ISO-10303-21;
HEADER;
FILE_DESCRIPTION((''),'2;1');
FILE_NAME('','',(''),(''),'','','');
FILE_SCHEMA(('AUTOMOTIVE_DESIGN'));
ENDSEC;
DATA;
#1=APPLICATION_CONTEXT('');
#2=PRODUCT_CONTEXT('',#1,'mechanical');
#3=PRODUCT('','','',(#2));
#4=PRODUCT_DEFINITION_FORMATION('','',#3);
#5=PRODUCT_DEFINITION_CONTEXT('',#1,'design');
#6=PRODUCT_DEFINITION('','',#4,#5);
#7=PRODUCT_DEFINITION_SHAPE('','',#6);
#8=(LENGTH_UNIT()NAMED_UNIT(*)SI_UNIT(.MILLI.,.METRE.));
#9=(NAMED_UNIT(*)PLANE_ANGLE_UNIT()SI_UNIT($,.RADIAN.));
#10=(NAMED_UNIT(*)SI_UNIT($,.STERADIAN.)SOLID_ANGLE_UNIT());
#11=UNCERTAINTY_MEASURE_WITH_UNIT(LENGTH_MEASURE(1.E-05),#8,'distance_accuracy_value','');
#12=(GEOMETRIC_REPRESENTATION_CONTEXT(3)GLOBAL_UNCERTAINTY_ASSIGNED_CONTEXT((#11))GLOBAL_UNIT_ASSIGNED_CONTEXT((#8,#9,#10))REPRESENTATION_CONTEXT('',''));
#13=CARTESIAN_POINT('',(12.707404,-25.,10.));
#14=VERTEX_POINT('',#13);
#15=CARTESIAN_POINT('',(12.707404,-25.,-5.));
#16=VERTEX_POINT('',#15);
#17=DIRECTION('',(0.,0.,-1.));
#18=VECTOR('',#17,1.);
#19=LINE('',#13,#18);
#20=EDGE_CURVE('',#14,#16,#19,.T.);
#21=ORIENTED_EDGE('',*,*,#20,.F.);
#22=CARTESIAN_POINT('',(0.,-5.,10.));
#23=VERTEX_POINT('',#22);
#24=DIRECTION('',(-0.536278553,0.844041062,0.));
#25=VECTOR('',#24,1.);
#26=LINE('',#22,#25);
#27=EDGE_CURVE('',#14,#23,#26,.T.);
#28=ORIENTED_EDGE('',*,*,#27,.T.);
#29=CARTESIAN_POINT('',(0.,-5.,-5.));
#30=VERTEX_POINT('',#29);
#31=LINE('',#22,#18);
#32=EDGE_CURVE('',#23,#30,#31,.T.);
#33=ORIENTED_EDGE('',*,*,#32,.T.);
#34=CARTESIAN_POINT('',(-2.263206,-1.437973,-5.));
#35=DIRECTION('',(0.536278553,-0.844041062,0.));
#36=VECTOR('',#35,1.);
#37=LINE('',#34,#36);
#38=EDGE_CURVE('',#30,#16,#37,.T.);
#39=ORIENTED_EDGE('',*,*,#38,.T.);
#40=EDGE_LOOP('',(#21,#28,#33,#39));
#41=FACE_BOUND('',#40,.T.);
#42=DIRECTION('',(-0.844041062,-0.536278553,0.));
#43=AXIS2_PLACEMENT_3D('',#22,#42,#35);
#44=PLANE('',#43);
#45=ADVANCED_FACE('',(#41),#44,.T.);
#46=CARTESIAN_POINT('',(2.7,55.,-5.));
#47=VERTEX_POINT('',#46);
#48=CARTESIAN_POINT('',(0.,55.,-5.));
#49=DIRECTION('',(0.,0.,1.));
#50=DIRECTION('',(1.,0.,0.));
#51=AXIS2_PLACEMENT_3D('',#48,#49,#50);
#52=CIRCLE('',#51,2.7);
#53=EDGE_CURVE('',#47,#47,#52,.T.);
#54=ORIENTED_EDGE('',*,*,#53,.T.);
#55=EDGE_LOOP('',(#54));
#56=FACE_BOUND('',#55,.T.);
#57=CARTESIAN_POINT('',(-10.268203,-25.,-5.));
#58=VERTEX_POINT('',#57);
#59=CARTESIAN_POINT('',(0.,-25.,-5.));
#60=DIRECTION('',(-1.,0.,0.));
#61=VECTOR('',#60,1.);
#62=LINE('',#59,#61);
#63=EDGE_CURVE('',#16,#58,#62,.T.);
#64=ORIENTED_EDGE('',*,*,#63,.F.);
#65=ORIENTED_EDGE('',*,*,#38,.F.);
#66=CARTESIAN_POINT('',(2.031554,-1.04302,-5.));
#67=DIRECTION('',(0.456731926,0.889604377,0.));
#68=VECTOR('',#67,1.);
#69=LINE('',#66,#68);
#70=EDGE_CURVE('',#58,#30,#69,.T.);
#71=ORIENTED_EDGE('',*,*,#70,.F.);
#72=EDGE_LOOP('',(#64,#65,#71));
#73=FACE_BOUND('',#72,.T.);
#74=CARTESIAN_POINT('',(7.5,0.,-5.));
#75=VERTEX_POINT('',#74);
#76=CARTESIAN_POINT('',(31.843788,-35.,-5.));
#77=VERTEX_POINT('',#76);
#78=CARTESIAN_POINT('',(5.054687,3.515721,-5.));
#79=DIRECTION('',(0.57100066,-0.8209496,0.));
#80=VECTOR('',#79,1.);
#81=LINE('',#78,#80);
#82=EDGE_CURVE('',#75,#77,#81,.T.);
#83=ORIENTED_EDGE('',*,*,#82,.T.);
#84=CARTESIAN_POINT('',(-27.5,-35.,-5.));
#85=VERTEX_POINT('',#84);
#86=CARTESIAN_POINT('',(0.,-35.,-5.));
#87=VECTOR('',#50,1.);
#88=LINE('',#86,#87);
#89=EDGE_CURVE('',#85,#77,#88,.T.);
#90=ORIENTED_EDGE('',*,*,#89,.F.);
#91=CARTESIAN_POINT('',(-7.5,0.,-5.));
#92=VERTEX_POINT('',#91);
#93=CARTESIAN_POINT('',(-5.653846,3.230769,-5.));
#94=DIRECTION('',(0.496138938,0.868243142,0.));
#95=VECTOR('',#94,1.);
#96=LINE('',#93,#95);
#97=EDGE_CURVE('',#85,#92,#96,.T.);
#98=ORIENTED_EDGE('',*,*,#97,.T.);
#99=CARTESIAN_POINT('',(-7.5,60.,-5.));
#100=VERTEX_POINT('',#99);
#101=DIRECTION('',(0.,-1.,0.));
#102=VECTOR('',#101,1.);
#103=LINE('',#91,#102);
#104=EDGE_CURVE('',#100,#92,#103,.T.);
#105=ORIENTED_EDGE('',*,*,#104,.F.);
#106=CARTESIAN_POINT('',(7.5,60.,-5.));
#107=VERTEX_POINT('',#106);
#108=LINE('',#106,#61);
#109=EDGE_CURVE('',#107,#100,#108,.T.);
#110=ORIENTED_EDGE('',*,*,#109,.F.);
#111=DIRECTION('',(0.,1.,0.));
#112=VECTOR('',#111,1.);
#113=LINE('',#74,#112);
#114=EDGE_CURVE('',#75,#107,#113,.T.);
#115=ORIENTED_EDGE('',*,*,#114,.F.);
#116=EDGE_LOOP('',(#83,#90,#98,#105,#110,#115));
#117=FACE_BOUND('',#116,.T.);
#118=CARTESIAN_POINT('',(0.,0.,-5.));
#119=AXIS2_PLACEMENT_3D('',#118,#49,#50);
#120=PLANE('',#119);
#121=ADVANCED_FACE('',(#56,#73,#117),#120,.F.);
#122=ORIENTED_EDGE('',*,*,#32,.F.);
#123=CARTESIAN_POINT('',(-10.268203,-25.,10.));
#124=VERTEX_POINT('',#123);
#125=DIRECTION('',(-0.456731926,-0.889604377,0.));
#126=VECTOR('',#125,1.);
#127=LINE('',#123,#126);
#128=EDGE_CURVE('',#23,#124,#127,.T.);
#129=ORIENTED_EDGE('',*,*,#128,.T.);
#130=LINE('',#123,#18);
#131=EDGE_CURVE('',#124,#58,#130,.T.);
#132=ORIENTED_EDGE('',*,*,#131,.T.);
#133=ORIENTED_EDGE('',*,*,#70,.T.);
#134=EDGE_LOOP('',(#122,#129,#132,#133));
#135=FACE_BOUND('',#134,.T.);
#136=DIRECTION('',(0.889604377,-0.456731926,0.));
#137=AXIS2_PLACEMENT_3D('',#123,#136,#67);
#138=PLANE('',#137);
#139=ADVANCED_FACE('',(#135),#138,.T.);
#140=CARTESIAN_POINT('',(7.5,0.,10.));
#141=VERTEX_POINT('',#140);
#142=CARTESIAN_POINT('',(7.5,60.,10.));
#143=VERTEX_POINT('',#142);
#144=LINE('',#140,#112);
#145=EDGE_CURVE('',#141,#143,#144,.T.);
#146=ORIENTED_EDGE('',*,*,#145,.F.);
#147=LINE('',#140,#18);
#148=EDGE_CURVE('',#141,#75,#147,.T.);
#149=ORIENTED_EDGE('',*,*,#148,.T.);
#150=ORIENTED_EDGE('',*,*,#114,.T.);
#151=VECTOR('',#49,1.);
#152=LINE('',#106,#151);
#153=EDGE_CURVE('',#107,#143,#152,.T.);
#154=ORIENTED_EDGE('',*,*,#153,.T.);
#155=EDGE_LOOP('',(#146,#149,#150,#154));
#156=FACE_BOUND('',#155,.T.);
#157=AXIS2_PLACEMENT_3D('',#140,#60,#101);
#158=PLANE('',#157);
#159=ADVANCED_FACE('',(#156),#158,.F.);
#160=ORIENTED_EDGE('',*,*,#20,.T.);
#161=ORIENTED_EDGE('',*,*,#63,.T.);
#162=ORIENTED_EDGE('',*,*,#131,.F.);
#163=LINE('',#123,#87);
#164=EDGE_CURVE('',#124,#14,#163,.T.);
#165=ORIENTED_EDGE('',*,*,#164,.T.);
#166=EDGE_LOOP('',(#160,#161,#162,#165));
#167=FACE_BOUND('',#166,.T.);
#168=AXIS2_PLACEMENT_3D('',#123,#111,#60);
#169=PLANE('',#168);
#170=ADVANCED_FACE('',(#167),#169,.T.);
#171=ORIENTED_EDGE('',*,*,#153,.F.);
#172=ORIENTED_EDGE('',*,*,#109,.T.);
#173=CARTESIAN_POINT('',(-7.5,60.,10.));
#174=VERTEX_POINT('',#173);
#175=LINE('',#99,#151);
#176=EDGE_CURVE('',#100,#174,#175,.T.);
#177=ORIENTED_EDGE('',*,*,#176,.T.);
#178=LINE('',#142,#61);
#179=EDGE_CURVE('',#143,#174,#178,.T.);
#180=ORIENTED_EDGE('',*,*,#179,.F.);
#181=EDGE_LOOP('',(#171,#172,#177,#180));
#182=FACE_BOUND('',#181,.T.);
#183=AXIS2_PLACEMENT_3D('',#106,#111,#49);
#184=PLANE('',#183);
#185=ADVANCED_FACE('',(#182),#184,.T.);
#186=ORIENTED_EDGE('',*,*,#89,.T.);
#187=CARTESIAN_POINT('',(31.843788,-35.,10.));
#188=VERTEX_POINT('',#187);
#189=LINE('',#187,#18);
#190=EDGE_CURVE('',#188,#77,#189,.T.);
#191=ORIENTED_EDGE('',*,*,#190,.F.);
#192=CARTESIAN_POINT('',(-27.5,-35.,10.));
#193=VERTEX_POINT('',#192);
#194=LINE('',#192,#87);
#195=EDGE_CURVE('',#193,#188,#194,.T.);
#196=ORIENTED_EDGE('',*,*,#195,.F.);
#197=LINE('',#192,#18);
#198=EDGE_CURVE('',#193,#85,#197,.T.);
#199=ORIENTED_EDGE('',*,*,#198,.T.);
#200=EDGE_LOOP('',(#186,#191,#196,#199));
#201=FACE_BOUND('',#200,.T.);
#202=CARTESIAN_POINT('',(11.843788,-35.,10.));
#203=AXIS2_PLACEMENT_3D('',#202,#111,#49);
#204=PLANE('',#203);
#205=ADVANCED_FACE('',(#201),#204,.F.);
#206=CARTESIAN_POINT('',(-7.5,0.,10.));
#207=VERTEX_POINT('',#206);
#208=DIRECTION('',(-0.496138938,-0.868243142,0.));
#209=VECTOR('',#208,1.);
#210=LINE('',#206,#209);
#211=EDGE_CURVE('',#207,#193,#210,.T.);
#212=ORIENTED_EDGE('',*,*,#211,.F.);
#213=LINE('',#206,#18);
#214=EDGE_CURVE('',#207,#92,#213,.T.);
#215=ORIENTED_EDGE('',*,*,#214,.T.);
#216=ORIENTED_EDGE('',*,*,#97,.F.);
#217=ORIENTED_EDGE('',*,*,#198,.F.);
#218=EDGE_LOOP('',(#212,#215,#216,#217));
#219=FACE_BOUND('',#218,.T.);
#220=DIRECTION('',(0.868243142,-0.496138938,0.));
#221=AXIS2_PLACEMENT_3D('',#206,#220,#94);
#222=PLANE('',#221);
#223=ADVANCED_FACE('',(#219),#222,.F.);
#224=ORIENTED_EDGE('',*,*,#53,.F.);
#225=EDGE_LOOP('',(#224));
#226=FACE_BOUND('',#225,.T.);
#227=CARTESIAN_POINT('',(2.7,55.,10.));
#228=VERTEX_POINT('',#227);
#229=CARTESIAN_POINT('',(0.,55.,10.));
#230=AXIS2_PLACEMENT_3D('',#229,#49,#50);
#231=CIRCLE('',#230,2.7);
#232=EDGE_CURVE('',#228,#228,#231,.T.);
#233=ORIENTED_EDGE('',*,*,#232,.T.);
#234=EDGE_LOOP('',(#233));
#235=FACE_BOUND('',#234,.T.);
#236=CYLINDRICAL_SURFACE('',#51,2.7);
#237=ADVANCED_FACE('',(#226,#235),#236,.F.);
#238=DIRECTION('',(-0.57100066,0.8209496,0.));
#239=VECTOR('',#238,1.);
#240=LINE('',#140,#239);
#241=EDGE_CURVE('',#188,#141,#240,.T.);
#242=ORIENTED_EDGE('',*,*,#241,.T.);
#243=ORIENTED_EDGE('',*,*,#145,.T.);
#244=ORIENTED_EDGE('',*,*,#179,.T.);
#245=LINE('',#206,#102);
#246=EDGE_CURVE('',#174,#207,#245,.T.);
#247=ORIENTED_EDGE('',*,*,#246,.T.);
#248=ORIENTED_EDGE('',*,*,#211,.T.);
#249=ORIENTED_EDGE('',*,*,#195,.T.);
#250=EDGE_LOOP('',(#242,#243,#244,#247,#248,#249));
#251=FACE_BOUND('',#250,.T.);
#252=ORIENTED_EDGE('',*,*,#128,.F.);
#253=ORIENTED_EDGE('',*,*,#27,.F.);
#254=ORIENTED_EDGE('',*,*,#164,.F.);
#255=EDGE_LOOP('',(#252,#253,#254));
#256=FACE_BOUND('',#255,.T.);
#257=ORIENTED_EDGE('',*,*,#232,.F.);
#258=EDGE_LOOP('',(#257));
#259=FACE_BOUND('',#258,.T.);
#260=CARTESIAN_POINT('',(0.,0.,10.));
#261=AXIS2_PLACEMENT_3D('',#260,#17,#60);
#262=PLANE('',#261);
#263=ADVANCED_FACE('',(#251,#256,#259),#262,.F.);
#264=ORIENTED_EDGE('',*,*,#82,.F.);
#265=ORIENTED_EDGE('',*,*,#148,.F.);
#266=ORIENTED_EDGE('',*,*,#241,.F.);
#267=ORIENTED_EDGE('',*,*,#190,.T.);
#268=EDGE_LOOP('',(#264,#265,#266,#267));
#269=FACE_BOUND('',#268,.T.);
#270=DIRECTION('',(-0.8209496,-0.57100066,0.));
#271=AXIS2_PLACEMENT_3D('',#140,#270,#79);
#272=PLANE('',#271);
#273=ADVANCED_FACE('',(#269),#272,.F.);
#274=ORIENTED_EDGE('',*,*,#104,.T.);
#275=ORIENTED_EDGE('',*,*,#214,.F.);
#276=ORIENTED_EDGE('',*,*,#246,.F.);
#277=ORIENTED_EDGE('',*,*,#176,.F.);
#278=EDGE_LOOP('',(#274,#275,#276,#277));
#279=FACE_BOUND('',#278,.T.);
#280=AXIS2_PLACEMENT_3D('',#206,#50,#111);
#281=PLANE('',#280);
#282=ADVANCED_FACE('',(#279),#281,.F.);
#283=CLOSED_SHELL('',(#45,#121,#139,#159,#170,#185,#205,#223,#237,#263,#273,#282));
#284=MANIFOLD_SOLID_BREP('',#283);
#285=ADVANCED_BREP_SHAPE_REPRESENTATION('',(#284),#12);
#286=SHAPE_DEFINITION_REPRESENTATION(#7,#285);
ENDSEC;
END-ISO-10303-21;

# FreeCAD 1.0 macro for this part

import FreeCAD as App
import Part
import Sketcher


def add_polygon(sketch, points):
    """Adds a closed chain of lines whose ends are joined by coincident constraints."""
    first, n = sketch.GeometryCount, len(points)
    for a, b in zip(points, points[1:] + points[:1]):
        sketch.addGeometry(Part.LineSegment(App.Vector(*a, 0), App.Vector(*b, 0)), False)
    for i in range(n):
        sketch.addConstraint(Sketcher.Constraint("Coincident", first + i, 2, first + (i + 1) % n, 1))

doc = App.newDocument("Part")
body = doc.addObject("PartDesign::Body", "Body")

# Sketch on XY plane
sketch1 = doc.addObject("Sketcher::SketchObject", "Sketch")
body.addObject(sketch1)
sketch1.AttachmentSupport = (doc.XY_Plane, [""])
sketch1.MapMode = "FlatFace"
add_polygon(sketch1, [(-8, 0), (-28, -35), (32, -35), (8, 0), (8, 35), (-8, 35)])  # lines 0-5
add_polygon(sketch1, [(13, -25), (-10, -25), (0, -5)])  # lines 6-8
sketch1.addConstraint(Sketcher.Constraint("Horizontal", 1))
sketch1.addConstraint(Sketcher.Constraint("Vertical", 3))
sketch1.addConstraint(Sketcher.Constraint("Horizontal", 4))
sketch1.addConstraint(Sketcher.Constraint("Vertical", 5))
sketch1.addConstraint(Sketcher.Constraint("Horizontal", 6))
sketch1.addConstraint(Sketcher.Constraint("Symmetric", 2, 2, 5, 2, -1, 1))
sketch1.addConstraint(Sketcher.Constraint("PointOnObject", 2, 2, -1))
sketch1.addConstraint(Sketcher.Constraint("PointOnObject", 7, 2, -2))
sketch1.addConstraint(Sketcher.Constraint("DistanceX", 4, 2, 4, 1, 15.0))
sketch1.addConstraint(Sketcher.Constraint("DistanceY", 0, 2, -1, 1, 35.0))
sketch1.addConstraint(Sketcher.Constraint("DistanceY", 6, 2, -1, 1, 25.0))
sketch1.addConstraint(Sketcher.Constraint("DistanceY", 7, 2, -1, 1, 5.0))
sketch1.addConstraint(Sketcher.Constraint("DistanceX", 0, 2, 2, 2, 35.0))
sketch1.addConstraint(Sketcher.Constraint("DistanceX", 1, 1, 1, 2, 59.343788))
sketch1.addConstraint(Sketcher.Constraint("Distance", 8, 23.69553))
sketch1.addConstraint(Sketcher.Constraint("DistanceX", 6, 2, 6, 1, 22.975608))
sketch1.addConstraint(Sketcher.Constraint("DistanceY", 3, 1, 3, 2, 34.865095))
pad1 = doc.addObject("PartDesign::Pad", "Pad")
body.addObject(pad1)
pad1.Profile = sketch1
pad1.Length = 10

# Sketch on XY plane
sketch2 = doc.addObject("Sketcher::SketchObject", "Sketch001")
body.addObject(sketch2)
sketch2.AttachmentSupport = (doc.XY_Plane, [""])
sketch2.MapMode = "FlatFace"
sketch2.AttachmentOffset = App.Placement(App.Vector(0, 0, 10), App.Rotation())
sketch2.addGeometry(Part.Circle(App.Vector(0, 28.9, 0), App.Vector(0, 0, 1), 2.5), False)
sketch2.addConstraint(Sketcher.Constraint("PointOnObject", 0, 3, -2))
sketch2.addConstraint(Sketcher.Constraint("Diameter", 0, 5.0))
sketch2.addConstraint(Sketcher.Constraint("DistanceY", -1, 1, 0, 3, 28.865095))
pocket1 = doc.addObject("PartDesign::Pocket", "Pocket")
body.addObject(pocket1)
pocket1.Profile = sketch2
pocket1.Length = 10

# Sketch on XY plane
sketch3 = doc.addObject("Sketcher::SketchObject", "Sketch002")
body.addObject(sketch3)
sketch3.AttachmentSupport = (doc.XY_Plane, [""])
sketch3.MapMode = "FlatFace"
sketch3.AttachmentOffset = App.Placement(App.Vector(0, 0, 10), App.Rotation())
add_polygon(sketch3, [(-8, 60), (-8, 0), (8, 0), (8, 60)])  # lines 0-3
sketch3.addConstraint(Sketcher.Constraint("Vertical", 0))
sketch3.addConstraint(Sketcher.Constraint("Horizontal", 1))
sketch3.addConstraint(Sketcher.Constraint("Vertical", 2))
sketch3.addConstraint(Sketcher.Constraint("Horizontal", 3))
sketch3.addConstraint(Sketcher.Constraint("Symmetric", 0, 2, 1, 2, -1, 1))
sketch3.addConstraint(Sketcher.Constraint("DistanceX", 1, 1, 1, 2, 15.0))
sketch3.addConstraint(Sketcher.Constraint("DistanceY", 0, 2, 0, 1, 60.0))
pad2 = doc.addObject("PartDesign::Pad", "Pad001")
body.addObject(pad2)
pad2.Profile = sketch3
pad2.Length = 15
pad2.Reversed = True

# Sketch on XY plane
sketch4 = doc.addObject("Sketcher::SketchObject", "Sketch003")
body.addObject(sketch4)
sketch4.AttachmentSupport = (doc.XY_Plane, [""])
sketch4.MapMode = "FlatFace"
sketch4.AttachmentOffset = App.Placement(App.Vector(0, 0, 10), App.Rotation())
add_polygon(sketch4, [(-8, 0), (-28, -35), (32, -35), (8, 0), (-1, 12)])  # lines 0-4
add_polygon(sketch4, [(0, -5), (13, -25), (-10, -25)])  # lines 5-7
sketch4.addConstraint(Sketcher.Constraint("Horizontal", 1))
sketch4.addConstraint(Sketcher.Constraint("Horizontal", 6))
sketch4.addConstraint(Sketcher.Constraint("Symmetric", 2, 2, 4, 2, -1, 1))
sketch4.addConstraint(Sketcher.Constraint("PointOnObject", 2, 2, -1))
sketch4.addConstraint(Sketcher.Constraint("PointOnObject", 7, 2, -2))
sketch4.addConstraint(Sketcher.Constraint("Parallel", 2, 3))
sketch4.addConstraint(Sketcher.Constraint("Parallel", 0, 4))
sketch4.addConstraint(Sketcher.Constraint("DistanceY", 0, 2, -1, 1, 35.0))
sketch4.addConstraint(Sketcher.Constraint("DistanceY", 5, 2, -1, 1, 25.0))
sketch4.addConstraint(Sketcher.Constraint("DistanceY", 7, 2, -1, 1, 5.0))
sketch4.addConstraint(Sketcher.Constraint("DistanceX", 0, 2, 2, 2, 35.0))
sketch4.addConstraint(Sketcher.Constraint("DistanceX", 4, 2, 2, 2, 15.0))
sketch4.addConstraint(Sketcher.Constraint("DistanceX", 1, 1, 1, 2, 59.343788))
sketch4.addConstraint(Sketcher.Constraint("Distance", 5, 23.69553))
sketch4.addConstraint(Sketcher.Constraint("DistanceX", 6, 2, 6, 1, 22.975608))
pad3 = doc.addObject("PartDesign::Pad", "Pad002")
body.addObject(pad3)
pad3.Profile = sketch4
pad3.Length = 15
pad3.Reversed = True

# Sketch on XY plane
sketch5 = doc.addObject("Sketcher::SketchObject", "Sketch004")
body.addObject(sketch5)
sketch5.AttachmentSupport = (doc.XY_Plane, [""])
sketch5.MapMode = "FlatFace"
sketch5.AttachmentOffset = App.Placement(App.Vector(0, 0, 10), App.Rotation())
sketch5.addGeometry(Part.Circle(App.Vector(0, 55, 0), App.Vector(0, 0, 1), 2.7), False)
sketch5.addConstraint(Sketcher.Constraint("PointOnObject", 0, 3, -2))
sketch5.addConstraint(Sketcher.Constraint("Diameter", 0, 5.4))
sketch5.addConstraint(Sketcher.Constraint("DistanceY", -1, 1, 0, 3, 55.0))
pocket2 = doc.addObject("PartDesign::Pocket", "Pocket001")
body.addObject(pocket2)
pocket2.Profile = sketch5
pocket2.Length = 15

doc.recompute()
